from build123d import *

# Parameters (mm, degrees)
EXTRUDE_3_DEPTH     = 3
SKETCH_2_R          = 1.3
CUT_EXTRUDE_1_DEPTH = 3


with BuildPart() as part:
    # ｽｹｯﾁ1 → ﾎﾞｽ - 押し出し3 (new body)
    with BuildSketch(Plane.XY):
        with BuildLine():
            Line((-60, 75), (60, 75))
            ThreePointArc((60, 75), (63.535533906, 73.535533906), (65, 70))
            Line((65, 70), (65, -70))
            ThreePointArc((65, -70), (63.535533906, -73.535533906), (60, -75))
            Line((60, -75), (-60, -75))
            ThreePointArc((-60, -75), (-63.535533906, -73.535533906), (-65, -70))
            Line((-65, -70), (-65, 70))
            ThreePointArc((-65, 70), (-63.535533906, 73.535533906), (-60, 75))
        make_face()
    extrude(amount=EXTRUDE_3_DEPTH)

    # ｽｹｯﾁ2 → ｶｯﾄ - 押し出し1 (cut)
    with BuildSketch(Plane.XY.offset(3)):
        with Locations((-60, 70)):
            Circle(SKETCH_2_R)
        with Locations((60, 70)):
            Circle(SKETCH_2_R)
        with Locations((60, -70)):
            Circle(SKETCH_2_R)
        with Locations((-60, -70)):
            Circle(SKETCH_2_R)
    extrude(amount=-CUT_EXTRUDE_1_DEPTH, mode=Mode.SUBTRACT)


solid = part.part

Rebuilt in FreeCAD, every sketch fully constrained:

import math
import FreeCAD as App
import Part
import Sketcher
from FreeCAD import Vector
Q = App.Units.Quantity

doc = App.newDocument("Part")
body = doc.addObject("PartDesign::Body", "Body")

sketch1 = doc.addObject("Sketcher::SketchObject", "Sketch")
body.addObject(sketch1)
sketch1.AttachmentSupport = (doc.XY_Plane, [""])
sketch1.MapMode = "FlatFace"
sketch1.addGeometry([
    Part.LineSegment(Vector(60, 75, 0), Vector(-60, 75, 0)),
    Part.ArcOfCircle(Part.Circle(Vector(-60, 70, 0), Vector(0, 0, 1), 5), math.radians(90), math.radians(180)),
    Part.LineSegment(Vector(-65, 70, 0), Vector(-65, -70, 0)),
    Part.ArcOfCircle(Part.Circle(Vector(-60, -70, 0), Vector(0, 0, 1), 5), math.radians(180), math.radians(270)),
    Part.LineSegment(Vector(-60, -75, 0), Vector(60, -75, 0)),
    Part.ArcOfCircle(Part.Circle(Vector(60, -70, 0), Vector(0, 0, 1), 5), math.radians(-90), math.radians(0)),
    Part.LineSegment(Vector(65, -70, 0), Vector(65, 70, 0)),
    Part.ArcOfCircle(Part.Circle(Vector(60, 70, 0), Vector(0, 0, 1), 5), math.radians(0), math.radians(90)),
], False)
sketch1.addConstraint([
    Sketcher.Constraint("Tangent", 0, 2, 1, 1),
    Sketcher.Constraint("Tangent", 1, 2, 2, 1),
    Sketcher.Constraint("Tangent", 2, 2, 3, 1),
    Sketcher.Constraint("Tangent", 3, 2, 4, 1),
    Sketcher.Constraint("Tangent", 4, 2, 5, 1),
    Sketcher.Constraint("Tangent", 5, 2, 6, 1),
    Sketcher.Constraint("Tangent", 6, 2, 7, 1),
    Sketcher.Constraint("Tangent", 7, 2, 0, 1),
    Sketcher.Constraint("Horizontal", 0),
    Sketcher.Constraint("Vertical", 2),
    Sketcher.Constraint("Horizontal", 4),
    Sketcher.Constraint("Vertical", 6),
    Sketcher.Constraint("Equal", 1, 3),
    Sketcher.Constraint("Equal", 3, 5),
    Sketcher.Constraint("Equal", 5, 7),
    Sketcher.Constraint("Symmetric", 1, 3, 5, 3, -1, 1),
    Sketcher.Constraint("Radius", 1, Q("5 mm")),
    Sketcher.Constraint("DistanceX", 0, 2, 0, 1, Q("120 mm")),
    Sketcher.Constraint("DistanceY", 2, 2, 2, 1, Q("140 mm")),
])
pad1 = doc.addObject("PartDesign::Pad", "Pad")
body.addObject(pad1)
pad1.Profile = sketch1
pad1.Length = 3

sketch2 = doc.addObject("Sketcher::SketchObject", "Sketch001")
body.addObject(sketch2)
sketch2.AttachmentSupport = (doc.XY_Plane, [""])
sketch2.MapMode = "FlatFace"
sketch2.AttachmentOffset = App.Placement(Vector(0, 0, 3), App.Rotation())
sketch2.addGeometry([
    Part.Circle(Vector(-60, 70, 0), Vector(0, 0, 1), 1.3),
    Part.Circle(Vector(60, 70, 0), Vector(0, 0, 1), 1.3),
    Part.Circle(Vector(60, -70, 0), Vector(0, 0, 1), 1.3),
    Part.Circle(Vector(-60, -70, 0), Vector(0, 0, 1), 1.3),
], False)
sketch2.addConstraint([
    Sketcher.Constraint("Equal", 0, 1),
    Sketcher.Constraint("Equal", 1, 2),
    Sketcher.Constraint("Equal", 2, 3),
    Sketcher.Constraint("Symmetric", 0, 3, 2, 3, -1, 1),
    Sketcher.Constraint("Symmetric", 1, 3, 3, 3, -1, 1),
    Sketcher.Constraint("Symmetric", 0, 3, 1, 3, -2),
    Sketcher.Constraint("Diameter", 0, Q("2.6 mm")),
    Sketcher.Constraint("DistanceX", 0, 3, -1, 1, Q("60 mm")),
    Sketcher.Constraint("DistanceY", -1, 1, 0, 3, Q("70 mm")),
])
pocket1 = doc.addObject("PartDesign::Pocket", "Pocket")
body.addObject(pocket1)
pocket1.Profile = sketch2
pocket1.Length = 3

doc.recompute()
